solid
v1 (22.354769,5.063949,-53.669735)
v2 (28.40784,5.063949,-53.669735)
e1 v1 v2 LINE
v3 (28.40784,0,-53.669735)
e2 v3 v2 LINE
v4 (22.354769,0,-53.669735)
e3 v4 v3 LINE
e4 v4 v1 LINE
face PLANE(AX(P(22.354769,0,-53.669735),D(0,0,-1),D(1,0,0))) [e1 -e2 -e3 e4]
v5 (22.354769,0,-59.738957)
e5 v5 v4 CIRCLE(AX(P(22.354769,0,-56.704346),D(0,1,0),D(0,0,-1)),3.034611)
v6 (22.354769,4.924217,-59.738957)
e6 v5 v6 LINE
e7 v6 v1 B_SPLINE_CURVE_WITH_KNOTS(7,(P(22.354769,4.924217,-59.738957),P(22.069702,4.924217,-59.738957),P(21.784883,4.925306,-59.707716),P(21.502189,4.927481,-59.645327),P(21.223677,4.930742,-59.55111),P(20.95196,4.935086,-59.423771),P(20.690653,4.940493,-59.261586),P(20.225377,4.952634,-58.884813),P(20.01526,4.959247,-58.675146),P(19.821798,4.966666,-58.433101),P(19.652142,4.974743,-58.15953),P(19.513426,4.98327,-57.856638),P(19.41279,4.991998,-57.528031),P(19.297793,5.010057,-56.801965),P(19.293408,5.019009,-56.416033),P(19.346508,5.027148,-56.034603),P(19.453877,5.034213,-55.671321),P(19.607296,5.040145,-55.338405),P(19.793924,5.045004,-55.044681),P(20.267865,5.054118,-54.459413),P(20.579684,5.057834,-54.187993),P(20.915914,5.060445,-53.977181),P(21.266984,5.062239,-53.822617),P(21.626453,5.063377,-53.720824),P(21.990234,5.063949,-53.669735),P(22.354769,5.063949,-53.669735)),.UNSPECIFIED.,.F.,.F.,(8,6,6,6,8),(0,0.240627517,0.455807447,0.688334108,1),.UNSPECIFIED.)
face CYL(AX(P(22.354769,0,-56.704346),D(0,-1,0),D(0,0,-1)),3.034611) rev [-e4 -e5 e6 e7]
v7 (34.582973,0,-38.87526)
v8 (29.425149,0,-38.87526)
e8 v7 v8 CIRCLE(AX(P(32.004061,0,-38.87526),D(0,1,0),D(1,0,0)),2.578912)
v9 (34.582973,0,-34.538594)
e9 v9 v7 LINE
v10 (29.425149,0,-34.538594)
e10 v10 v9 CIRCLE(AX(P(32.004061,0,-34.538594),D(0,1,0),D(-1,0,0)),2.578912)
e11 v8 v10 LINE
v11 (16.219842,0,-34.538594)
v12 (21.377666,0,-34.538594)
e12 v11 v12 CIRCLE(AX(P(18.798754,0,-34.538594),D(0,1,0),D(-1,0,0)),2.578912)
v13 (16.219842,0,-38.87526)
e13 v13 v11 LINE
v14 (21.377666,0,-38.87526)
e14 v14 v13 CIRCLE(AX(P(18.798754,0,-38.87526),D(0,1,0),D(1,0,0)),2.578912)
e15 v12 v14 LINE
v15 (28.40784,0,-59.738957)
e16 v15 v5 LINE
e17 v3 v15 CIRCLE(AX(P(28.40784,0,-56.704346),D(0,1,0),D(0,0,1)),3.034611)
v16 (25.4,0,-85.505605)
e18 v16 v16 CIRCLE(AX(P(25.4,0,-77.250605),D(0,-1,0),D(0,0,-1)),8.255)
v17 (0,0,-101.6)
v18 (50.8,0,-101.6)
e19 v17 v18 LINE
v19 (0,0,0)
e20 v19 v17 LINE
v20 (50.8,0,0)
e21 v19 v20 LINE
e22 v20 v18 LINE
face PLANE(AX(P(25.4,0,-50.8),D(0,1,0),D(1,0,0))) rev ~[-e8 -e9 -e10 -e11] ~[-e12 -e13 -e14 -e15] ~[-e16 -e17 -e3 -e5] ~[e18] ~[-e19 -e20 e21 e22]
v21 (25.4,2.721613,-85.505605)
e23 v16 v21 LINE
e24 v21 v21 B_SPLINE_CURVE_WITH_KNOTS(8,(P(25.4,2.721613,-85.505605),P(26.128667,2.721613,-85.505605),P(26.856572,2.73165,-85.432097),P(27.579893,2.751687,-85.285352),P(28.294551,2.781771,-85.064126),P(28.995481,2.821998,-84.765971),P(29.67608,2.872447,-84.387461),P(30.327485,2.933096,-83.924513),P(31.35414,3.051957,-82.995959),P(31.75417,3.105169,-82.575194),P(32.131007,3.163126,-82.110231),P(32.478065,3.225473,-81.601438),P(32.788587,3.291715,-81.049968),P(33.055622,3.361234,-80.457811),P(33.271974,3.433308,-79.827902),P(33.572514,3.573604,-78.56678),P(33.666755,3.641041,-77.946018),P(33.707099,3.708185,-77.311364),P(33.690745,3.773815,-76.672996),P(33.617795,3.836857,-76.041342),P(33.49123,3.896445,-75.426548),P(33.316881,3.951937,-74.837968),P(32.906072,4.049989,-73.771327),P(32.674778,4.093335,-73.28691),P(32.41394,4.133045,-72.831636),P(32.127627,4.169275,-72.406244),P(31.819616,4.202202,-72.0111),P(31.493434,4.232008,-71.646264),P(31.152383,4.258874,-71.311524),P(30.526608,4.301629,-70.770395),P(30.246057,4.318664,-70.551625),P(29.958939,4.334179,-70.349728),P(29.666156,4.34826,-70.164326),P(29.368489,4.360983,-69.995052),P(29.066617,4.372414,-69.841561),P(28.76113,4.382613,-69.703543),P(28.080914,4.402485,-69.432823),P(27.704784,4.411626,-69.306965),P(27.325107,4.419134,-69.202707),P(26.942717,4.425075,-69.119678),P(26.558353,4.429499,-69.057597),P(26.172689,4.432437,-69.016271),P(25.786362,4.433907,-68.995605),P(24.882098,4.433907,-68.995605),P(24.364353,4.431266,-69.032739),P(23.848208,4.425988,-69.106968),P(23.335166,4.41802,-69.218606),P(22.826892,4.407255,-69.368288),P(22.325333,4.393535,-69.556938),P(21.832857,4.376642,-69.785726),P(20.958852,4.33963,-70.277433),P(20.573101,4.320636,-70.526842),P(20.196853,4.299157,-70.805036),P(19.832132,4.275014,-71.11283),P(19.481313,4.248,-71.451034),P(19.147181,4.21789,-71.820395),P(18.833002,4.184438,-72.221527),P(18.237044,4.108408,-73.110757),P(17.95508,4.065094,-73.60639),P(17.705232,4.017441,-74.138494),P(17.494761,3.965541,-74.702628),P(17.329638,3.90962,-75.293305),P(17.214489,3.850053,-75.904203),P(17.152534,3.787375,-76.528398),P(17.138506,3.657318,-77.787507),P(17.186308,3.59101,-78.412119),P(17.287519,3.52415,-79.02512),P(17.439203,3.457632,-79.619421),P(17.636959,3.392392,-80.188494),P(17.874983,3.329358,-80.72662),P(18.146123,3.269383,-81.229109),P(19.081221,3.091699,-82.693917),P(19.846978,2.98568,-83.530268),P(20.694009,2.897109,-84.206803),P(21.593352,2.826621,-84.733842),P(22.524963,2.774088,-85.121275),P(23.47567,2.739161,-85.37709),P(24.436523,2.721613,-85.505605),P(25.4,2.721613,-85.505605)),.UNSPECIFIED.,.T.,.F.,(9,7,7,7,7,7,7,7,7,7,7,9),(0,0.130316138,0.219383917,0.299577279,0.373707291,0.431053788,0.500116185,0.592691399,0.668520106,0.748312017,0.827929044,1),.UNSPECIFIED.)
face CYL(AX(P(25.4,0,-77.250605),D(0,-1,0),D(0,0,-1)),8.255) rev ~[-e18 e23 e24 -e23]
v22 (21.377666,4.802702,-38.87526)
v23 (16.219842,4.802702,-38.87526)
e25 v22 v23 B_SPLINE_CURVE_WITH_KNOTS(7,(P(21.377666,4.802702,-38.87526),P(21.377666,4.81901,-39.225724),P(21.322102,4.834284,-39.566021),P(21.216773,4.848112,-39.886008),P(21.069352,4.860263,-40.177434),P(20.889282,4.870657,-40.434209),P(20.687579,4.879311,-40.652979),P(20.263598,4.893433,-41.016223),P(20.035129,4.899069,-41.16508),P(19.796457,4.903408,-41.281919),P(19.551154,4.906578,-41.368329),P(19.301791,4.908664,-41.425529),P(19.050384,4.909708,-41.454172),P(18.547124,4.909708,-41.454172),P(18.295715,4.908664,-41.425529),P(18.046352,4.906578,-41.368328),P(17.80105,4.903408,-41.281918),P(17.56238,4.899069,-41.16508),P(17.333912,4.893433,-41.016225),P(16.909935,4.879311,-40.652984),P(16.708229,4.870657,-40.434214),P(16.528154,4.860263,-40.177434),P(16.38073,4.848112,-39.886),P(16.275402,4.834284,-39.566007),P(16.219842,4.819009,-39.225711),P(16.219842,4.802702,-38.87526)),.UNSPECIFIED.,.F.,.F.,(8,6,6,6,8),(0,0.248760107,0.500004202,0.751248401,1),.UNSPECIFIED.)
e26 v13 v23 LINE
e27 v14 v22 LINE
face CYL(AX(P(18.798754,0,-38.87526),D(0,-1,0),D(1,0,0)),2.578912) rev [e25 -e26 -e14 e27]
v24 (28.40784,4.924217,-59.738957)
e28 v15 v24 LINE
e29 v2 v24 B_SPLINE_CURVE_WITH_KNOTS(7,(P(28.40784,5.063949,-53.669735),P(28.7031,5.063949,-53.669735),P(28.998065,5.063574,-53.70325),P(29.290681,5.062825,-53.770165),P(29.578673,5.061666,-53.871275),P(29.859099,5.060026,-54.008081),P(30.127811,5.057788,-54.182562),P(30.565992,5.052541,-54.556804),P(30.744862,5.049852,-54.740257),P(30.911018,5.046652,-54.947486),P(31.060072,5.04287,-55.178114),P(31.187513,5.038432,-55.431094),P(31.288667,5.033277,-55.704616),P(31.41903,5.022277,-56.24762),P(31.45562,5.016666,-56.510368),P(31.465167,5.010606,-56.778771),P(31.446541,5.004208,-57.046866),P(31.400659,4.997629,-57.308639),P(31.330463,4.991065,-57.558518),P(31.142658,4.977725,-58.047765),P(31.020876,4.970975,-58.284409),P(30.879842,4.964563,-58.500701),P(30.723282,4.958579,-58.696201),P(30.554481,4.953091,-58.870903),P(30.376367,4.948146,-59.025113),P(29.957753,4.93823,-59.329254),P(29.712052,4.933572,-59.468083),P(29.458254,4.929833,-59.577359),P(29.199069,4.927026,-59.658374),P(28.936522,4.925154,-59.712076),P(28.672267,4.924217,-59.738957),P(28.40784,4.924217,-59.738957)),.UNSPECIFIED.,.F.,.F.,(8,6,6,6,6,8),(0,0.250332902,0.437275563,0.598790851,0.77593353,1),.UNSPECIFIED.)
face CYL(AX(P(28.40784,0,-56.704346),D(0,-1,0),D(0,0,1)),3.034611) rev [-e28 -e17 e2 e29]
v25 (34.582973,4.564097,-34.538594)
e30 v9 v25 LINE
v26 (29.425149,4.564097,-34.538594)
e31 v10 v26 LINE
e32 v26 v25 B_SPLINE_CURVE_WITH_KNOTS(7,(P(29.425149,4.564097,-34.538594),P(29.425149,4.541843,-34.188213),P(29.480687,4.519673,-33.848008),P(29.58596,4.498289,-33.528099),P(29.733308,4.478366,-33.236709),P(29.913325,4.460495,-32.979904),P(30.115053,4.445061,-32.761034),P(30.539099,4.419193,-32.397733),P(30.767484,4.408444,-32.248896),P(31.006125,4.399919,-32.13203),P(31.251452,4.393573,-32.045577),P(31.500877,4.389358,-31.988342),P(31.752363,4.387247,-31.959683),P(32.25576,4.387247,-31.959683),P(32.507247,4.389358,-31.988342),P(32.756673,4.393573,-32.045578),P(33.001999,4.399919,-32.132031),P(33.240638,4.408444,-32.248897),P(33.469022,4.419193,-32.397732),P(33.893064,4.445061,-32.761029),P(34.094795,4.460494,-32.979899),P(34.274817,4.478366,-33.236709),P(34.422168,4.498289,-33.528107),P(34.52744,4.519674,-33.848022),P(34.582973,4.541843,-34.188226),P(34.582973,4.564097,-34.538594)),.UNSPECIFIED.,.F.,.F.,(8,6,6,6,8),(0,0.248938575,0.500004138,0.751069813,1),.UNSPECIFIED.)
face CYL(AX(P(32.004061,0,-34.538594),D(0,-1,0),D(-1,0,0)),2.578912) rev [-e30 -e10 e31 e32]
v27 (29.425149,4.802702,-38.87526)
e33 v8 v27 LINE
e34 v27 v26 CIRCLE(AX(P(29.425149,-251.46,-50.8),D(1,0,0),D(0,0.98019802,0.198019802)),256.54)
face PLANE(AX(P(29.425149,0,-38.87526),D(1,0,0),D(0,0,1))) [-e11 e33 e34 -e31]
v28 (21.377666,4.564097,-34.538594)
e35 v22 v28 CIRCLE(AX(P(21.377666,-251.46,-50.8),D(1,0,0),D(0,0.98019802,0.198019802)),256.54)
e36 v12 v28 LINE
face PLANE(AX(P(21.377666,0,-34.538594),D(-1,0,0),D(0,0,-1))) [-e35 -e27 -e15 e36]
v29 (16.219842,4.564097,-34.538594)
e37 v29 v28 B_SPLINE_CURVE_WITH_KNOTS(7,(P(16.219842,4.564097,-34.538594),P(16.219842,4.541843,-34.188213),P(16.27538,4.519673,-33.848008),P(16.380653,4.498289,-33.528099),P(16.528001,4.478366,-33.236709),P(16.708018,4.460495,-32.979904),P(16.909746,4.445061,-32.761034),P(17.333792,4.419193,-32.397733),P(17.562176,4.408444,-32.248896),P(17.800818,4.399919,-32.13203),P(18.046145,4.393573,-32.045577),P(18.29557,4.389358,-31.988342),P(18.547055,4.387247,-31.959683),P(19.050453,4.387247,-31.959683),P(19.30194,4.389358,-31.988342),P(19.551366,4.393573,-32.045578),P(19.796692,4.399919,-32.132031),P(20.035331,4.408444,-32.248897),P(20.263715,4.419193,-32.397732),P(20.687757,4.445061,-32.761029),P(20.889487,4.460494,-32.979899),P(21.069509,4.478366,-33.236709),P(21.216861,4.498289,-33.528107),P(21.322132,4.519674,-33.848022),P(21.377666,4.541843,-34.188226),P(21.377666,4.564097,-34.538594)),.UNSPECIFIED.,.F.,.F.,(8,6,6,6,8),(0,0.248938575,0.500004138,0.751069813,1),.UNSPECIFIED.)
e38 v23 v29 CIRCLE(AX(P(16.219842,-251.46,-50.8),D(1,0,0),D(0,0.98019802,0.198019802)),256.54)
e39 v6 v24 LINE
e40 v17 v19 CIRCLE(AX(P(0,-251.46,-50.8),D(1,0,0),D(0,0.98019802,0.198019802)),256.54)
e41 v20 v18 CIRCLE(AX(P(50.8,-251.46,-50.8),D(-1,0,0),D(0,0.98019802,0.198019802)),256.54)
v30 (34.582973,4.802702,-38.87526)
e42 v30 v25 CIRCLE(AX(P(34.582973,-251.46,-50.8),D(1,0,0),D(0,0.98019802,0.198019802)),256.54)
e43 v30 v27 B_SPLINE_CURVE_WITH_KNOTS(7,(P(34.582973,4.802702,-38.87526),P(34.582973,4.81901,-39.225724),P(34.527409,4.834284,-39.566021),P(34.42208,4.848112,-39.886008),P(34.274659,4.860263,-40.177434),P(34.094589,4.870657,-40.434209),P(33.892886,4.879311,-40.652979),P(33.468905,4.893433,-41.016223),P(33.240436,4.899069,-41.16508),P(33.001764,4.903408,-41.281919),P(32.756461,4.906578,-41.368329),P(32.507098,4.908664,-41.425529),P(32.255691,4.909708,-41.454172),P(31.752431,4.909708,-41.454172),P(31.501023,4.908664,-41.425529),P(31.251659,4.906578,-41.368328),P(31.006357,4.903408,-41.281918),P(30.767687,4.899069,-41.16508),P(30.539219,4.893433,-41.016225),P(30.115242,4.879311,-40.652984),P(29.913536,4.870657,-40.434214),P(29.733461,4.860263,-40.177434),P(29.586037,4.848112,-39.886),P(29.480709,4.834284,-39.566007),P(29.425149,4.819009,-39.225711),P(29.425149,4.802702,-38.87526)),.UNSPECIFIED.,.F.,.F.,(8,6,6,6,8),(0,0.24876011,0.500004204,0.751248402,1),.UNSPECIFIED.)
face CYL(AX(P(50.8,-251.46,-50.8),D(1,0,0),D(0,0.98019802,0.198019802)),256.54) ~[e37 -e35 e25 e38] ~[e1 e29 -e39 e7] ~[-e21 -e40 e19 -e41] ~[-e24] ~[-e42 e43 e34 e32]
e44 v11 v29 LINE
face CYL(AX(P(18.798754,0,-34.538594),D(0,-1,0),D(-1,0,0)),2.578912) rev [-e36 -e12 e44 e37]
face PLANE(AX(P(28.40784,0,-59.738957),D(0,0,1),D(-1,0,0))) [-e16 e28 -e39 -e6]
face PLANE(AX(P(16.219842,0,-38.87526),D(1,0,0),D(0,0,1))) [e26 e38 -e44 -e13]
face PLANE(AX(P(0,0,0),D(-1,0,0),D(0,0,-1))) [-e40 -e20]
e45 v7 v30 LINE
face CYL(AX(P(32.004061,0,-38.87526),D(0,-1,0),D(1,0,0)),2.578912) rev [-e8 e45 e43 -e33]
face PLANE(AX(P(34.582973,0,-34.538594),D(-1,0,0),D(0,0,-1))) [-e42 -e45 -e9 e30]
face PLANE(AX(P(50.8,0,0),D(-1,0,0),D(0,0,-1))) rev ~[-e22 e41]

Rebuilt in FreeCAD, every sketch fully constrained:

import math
import FreeCAD as App
import Part
import Sketcher

V = App.Vector
Q = App.Units.Quantity


def add_polygon(sketch, points):
    """Adds a closed chain of lines whose ends are joined by coincident constraints."""
    first, n = sketch.GeometryCount, len(points)
    for a, b in zip(points, points[1:] + points[:1]):
        sketch.addGeometry(Part.LineSegment(App.Vector(*a, 0), App.Vector(*b, 0)), False)
    for i in range(n):
        sketch.addConstraint(Sketcher.Constraint("Coincident", first + i, 2, first + (i + 1) % n, 1))

doc = App.newDocument("Part")
params = doc.addObject("Spreadsheet::Sheet", "Params")
for row, (alias, value) in enumerate([
    ("sketch1_width", "2 in"),
    ("sketch1_height", "4 in"),
    ("pad1_length", "3.03 in"),
    ("sketch2_radius", "10.1 in"),
    ("sketch2_height", "4 in"),
    ("sketch2_width", "3.03 in"),
    ("sketch3_diameter", "0.65 in"),
], start=1):
    params.set(f"A{row}", alias)
    params.set(f"B{row}", "=" + value)
    params.setAlias(f"B{row}", alias)

body = doc.addObject("PartDesign::Body", "Body")

# Sketch on XZ plane
sketch1 = doc.addObject("Sketcher::SketchObject", "Sketch")
body.addObject(sketch1)
sketch1.AttachmentSupport = (doc.XZ_Plane, [""])
sketch1.MapMode = "FlatFace"
add_polygon(sketch1, [(0, -101.6), (0, 0), (50.8, 0), (50.8, -101.6)])  # lines 0-3
sketch1.addConstraint(Sketcher.Constraint("Vertical", 0))
sketch1.addConstraint(Sketcher.Constraint("Horizontal", 1))
sketch1.addConstraint(Sketcher.Constraint("Vertical", 2))
sketch1.addConstraint(Sketcher.Constraint("Horizontal", 3))
sketch1.addConstraint(Sketcher.Constraint("Coincident", 0, 2, -1, 1))
sketch1.addConstraint(Sketcher.Constraint("DistanceX", 1, 1, 1, 2, Q("2 in")))
sketch1.addConstraint(Sketcher.Constraint("DistanceY", 0, 1, 0, 2, Q("4 in")))
sketch1.setExpression("Constraints[9]", "Params.sketch1_width")
sketch1.setExpression("Constraints[10]", "Params.sketch1_height")
pad1 = doc.addObject("PartDesign::Pad", "Pad")
body.addObject(pad1)
pad1.Profile = sketch1
pad1.setExpression("Length", "Params.pad1_length")
pad1.Reversed = True

# Sketch on YZ plane
sketch2 = doc.addObject("Sketcher::SketchObject", "Sketch001")
body.addObject(sketch2)
sketch2.AttachmentSupport = (doc.YZ_Plane, [""])
sketch2.MapMode = "FlatFace"
sketch2.AttachmentOffset = App.Placement(V(0, 0, 2 * 25.4), App.Rotation())
sketch2.addGeometry(Part.ArcOfCircle(Part.Circle(V(-251.46, -50.8, 0), V(0, 0, 1), 256.54), math.radians(-11.421186), math.radians(11.421186)), False)
sketch2.addGeometry(Part.LineSegment(V(0, -101.6, 0), V(76.962, -101.6, 0)), False)
sketch2.addGeometry(Part.LineSegment(V(76.962, -101.6, 0), V(76.962, 0, 0)), False)
sketch2.addGeometry(Part.LineSegment(V(76.962, 0, 0), V(0, 0, 0)), False)
sketch2.addConstraint(Sketcher.Constraint("Coincident", 0, 1, 1, 1))
sketch2.addConstraint(Sketcher.Constraint("Coincident", 1, 2, 2, 1))
sketch2.addConstraint(Sketcher.Constraint("Coincident", 2, 2, 3, 1))
sketch2.addConstraint(Sketcher.Constraint("Coincident", 3, 2, 0, 2))
sketch2.addConstraint(Sketcher.Constraint("Horizontal", 1))
sketch2.addConstraint(Sketcher.Constraint("Vertical", 2))
sketch2.addConstraint(Sketcher.Constraint("Horizontal", 3))
sketch2.addConstraint(Sketcher.Constraint("Coincident", 3, 2, -1, 1))
sketch2.addConstraint(Sketcher.Constraint("PointOnObject", 0, 1, -2))
sketch2.addConstraint(Sketcher.Constraint("Radius", 0, Q("10.1 in")))
sketch2.addConstraint(Sketcher.Constraint("DistanceY", 2, 1, 2, 2, Q("4 in")))
sketch2.addConstraint(Sketcher.Constraint("DistanceX", 1, 1, 1, 2, Q("3.03 in")))
sketch2.setExpression("Constraints[9]", "Params.sketch2_radius")
sketch2.setExpression("Constraints[10]", "Params.sketch2_height")
sketch2.setExpression("Constraints[11]", "Params.sketch2_width")
pocket1 = doc.addObject("PartDesign::Pocket", "Pocket")
body.addObject(pocket1)
pocket1.Profile = sketch2
pocket1.Type = "ThroughAll"

# Sketch on XZ plane
sketch3 = doc.addObject("Sketcher::SketchObject", "Sketch002")
body.addObject(sketch3)
sketch3.AttachmentSupport = (doc.XZ_Plane, [""])
sketch3.MapMode = "FlatFace"
sketch3.addGeometry(Part.Circle(V(25.4, -77.250605, 0), V(0, 0, 1), 8.255), False)
sketch3.addConstraint(Sketcher.Constraint("Diameter", 0, Q("0.65 in")))
sketch3.addConstraint(Sketcher.Constraint("DistanceX", -1, 1, 0, 3, Q("1 in")))
sketch3.addConstraint(Sketcher.Constraint("DistanceY", 0, 3, -1, 1, Q("77.250605 mm")))
sketch3.setExpression("Constraints[0]", "Params.sketch3_diameter")
pocket2 = doc.addObject("PartDesign::Pocket", "Pocket001")
body.addObject(pocket2)
pocket2.Profile = sketch3
pocket2.Type = "ThroughAll"

# Sketch on XZ plane
sketch4 = doc.addObject("Sketcher::SketchObject", "Sketch003")
body.addObject(sketch4)
sketch4.AttachmentSupport = (doc.XZ_Plane, [""])
sketch4.MapMode = "FlatFace"
sketch4.addGeometry(Part.LineSegment(V(21.377666, -38.87526, 0), V(21.377666, -34.538594, 0)), False)
sketch4.addGeometry(Part.ArcOfCircle(Part.Circle(V(18.798754, -34.538594, 0), V(0, 0, 1), 2.578912), math.radians(0), math.radians(180)), False)
sketch4.addGeometry(Part.LineSegment(V(16.219842, -34.538594, 0), V(16.219842, -38.87526, 0)), False)
sketch4.addGeometry(Part.ArcOfCircle(Part.Circle(V(18.798754, -38.87526, 0), V(0, 0, 1), 2.578912), math.radians(180), math.radians(360)), False)
sketch4.addGeometry(Part.LineSegment(V(34.582973, -38.87526, 0), V(34.582973, -34.538594, 0)), False)
sketch4.addGeometry(Part.ArcOfCircle(Part.Circle(V(32.004061, -34.538594, 0), V(0, 0, 1), 2.578912), math.radians(0), math.radians(180)), False)
sketch4.addGeometry(Part.LineSegment(V(29.425149, -34.538594, 0), V(29.425149, -38.87526, 0)), False)
sketch4.addGeometry(Part.ArcOfCircle(Part.Circle(V(32.004061, -38.87526, 0), V(0, 0, 1), 2.578912), math.radians(180), math.radians(360)), False)
sketch4.addGeometry(Part.LineSegment(V(28.40784, -53.669735, 0), V(22.354769, -53.669735, 0)), False)
sketch4.addGeometry(Part.ArcOfCircle(Part.Circle(V(22.354769, -56.704346, 0), V(0, 0, 1), 3.034611), math.radians(90), math.radians(270)), False)
sketch4.addGeometry(Part.LineSegment(V(22.354769, -59.738957, 0), V(28.40784, -59.738957, 0)), False)
sketch4.addGeometry(Part.ArcOfCircle(Part.Circle(V(28.40784, -56.704346, 0), V(0, 0, 1), 3.034611), math.radians(-90), math.radians(90)), False)
sketch4.addConstraint(Sketcher.Constraint("Tangent", 0, 2, 1, 1))
sketch4.addConstraint(Sketcher.Constraint("Tangent", 1, 2, 2, 1))
sketch4.addConstraint(Sketcher.Constraint("Tangent", 2, 2, 3, 1))
sketch4.addConstraint(Sketcher.Constraint("Tangent", 3, 2, 0, 1))
sketch4.addConstraint(Sketcher.Constraint("Tangent", 4, 2, 5, 1))
sketch4.addConstraint(Sketcher.Constraint("Tangent", 5, 2, 6, 1))
sketch4.addConstraint(Sketcher.Constraint("Tangent", 6, 2, 7, 1))
sketch4.addConstraint(Sketcher.Constraint("Tangent", 7, 2, 4, 1))
sketch4.addConstraint(Sketcher.Constraint("Tangent", 8, 2, 9, 1))
sketch4.addConstraint(Sketcher.Constraint("Tangent", 9, 2, 10, 1))
sketch4.addConstraint(Sketcher.Constraint("Tangent", 10, 2, 11, 1))
sketch4.addConstraint(Sketcher.Constraint("Tangent", 11, 2, 8, 1))
sketch4.addConstraint(Sketcher.Constraint("Vertical", 0))
sketch4.addConstraint(Sketcher.Constraint("Vertical", 2))
sketch4.addConstraint(Sketcher.Constraint("Vertical", 4))
sketch4.addConstraint(Sketcher.Constraint("Vertical", 6))
sketch4.addConstraint(Sketcher.Constraint("Horizontal", 8))
sketch4.addConstraint(Sketcher.Constraint("Horizontal", 10))
sketch4.addConstraint(Sketcher.Constraint("Equal", 3, 5))
sketch4.addConstraint(Sketcher.Constraint("Horizontal", 1, 3, 5, 3))
sketch4.addConstraint(Sketcher.Constraint("Horizontal", 3, 3, 7, 3))
sketch4.addConstraint(Sketcher.Constraint("Radius", 1, Q("2.578912 mm")))
sketch4.addConstraint(Sketcher.Constraint("Radius", 9, Q("3.034611 mm")))
sketch4.addConstraint(Sketcher.Constraint("DistanceX", 8, 2, 8, 1, Q("6.053071 mm")))
sketch4.addConstraint(Sketcher.Constraint("DistanceY", 0, 1, 0, 2, Q("4.336666 mm")))
sketch4.addConstraint(Sketcher.Constraint("DistanceY", 3, 3, -1, 1, Q("38.87526 mm")))
sketch4.addConstraint(Sketcher.Constraint("DistanceX", -1, 1, 5, 3, Q("32.004061 mm")))
sketch4.addConstraint(Sketcher.Constraint("DistanceX", -1, 1, 9, 3, Q("22.354769 mm")))
sketch4.addConstraint(Sketcher.Constraint("DistanceY", 9, 3, 1, 3, Q("22.165752 mm")))
sketch4.addConstraint(Sketcher.Constraint("DistanceX", 1, 2, 5, 3, Q("15.784219 mm")))
pocket3 = doc.addObject("PartDesign::Pocket", "Pocket002")
body.addObject(pocket3)
pocket3.Profile = sketch4
pocket3.Type = "ThroughAll"

doc.recompute()
